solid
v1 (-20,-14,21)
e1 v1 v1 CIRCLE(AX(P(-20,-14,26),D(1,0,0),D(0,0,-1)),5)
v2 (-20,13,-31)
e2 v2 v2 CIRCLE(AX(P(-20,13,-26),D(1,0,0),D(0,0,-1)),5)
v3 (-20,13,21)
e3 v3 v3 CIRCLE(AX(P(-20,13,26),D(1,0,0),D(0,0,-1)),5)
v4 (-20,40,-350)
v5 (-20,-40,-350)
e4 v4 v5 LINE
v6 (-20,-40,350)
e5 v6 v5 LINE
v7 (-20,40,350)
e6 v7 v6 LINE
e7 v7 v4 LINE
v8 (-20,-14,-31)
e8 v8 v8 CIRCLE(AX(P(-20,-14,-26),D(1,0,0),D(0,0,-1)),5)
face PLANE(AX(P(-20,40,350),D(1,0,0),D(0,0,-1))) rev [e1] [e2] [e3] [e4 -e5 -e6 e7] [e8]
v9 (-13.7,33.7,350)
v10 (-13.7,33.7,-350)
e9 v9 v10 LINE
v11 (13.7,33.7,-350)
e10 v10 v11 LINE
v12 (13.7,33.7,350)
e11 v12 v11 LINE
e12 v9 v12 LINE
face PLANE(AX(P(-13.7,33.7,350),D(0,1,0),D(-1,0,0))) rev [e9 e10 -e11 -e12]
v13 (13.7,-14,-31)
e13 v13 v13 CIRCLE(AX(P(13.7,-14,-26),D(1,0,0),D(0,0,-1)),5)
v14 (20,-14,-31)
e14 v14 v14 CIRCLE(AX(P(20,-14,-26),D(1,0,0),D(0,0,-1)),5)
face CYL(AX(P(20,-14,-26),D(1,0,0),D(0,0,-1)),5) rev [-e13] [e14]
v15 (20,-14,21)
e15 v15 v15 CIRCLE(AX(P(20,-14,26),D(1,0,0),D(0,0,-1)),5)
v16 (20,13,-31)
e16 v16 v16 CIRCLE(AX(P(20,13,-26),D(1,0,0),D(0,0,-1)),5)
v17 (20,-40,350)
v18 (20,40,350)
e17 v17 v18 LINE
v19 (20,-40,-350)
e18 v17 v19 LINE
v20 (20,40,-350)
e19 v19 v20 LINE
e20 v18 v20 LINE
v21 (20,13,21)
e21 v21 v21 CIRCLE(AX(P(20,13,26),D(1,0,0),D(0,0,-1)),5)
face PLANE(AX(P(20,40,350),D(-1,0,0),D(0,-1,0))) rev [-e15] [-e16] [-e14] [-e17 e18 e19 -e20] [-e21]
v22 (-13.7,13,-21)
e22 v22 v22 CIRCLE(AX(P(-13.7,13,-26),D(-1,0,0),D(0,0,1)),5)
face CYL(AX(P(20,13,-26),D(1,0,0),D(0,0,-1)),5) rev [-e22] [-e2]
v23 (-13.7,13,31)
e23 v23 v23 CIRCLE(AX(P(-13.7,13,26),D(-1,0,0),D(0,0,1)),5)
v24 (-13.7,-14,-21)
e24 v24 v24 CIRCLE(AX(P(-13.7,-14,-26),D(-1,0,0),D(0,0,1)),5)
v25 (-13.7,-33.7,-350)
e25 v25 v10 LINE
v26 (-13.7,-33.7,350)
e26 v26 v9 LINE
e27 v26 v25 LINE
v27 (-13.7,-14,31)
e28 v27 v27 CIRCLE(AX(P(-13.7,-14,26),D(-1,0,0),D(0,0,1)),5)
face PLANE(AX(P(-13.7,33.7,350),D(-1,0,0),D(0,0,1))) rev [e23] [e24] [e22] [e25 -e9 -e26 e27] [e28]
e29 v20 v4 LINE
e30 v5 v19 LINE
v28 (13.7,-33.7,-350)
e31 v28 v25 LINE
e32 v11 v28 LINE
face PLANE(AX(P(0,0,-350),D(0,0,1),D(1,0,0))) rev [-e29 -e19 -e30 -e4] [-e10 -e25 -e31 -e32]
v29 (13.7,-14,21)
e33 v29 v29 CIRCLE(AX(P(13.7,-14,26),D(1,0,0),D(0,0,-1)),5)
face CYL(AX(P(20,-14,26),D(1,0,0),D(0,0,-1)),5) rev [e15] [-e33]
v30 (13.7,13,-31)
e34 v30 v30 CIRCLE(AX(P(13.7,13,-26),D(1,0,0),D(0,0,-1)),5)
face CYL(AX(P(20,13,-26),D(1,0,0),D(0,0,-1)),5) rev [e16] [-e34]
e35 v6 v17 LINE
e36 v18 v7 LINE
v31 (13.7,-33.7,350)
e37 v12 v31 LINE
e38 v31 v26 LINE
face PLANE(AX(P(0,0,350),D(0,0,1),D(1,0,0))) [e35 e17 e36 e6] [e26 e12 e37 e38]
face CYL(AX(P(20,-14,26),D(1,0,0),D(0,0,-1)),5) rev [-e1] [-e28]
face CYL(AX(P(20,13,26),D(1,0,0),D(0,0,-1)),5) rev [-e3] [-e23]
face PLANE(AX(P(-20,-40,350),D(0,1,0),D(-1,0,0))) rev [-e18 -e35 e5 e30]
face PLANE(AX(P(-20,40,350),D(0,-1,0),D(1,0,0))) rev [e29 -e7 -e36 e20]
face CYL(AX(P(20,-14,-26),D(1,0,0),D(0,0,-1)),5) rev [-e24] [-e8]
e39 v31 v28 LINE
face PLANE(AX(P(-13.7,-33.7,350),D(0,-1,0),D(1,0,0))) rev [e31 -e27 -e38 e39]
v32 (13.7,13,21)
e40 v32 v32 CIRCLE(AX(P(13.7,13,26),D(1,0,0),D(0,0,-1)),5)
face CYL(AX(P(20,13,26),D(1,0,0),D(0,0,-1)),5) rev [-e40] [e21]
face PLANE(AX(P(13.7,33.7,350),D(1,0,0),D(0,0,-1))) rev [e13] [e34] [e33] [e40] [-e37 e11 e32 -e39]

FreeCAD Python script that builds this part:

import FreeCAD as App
import Part
import Sketcher


def add_polygon(sketch, points):
    """Adds a closed chain of lines whose ends are joined by coincident constraints."""
    first, n = sketch.GeometryCount, len(points)
    for a, b in zip(points, points[1:] + points[:1]):
        sketch.addGeometry(Part.LineSegment(App.Vector(*a, 0), App.Vector(*b, 0)), False)
    for i in range(n):
        sketch.addConstraint(Sketcher.Constraint("Coincident", first + i, 2, first + (i + 1) % n, 1))

doc = App.newDocument("Part")
body = doc.addObject("PartDesign::Body", "Body")

# Sketch on XY plane
sketch1 = body.newObject("Sketcher::SketchObject", "Sketch")
sketch1.AttachmentSupport = (doc.getObject("XY_Plane"), [""])
sketch1.MapMode = "FlatFace"
add_polygon(sketch1, [(-20, 40), (-20, -40), (20, -40), (20, 40)])  # lines 0-3
add_polygon(sketch1, [(14, -34), (-14, -34), (-14, 34), (14, 34)])  # lines 4-7
sketch1.addConstraint([
    Sketcher.Constraint("Vertical", 0),
    Sketcher.Constraint("Horizontal", 1),
    Sketcher.Constraint("Vertical", 2),
    Sketcher.Constraint("Horizontal", 3),
    Sketcher.Constraint("Horizontal", 4),
    Sketcher.Constraint("Vertical", 5),
    Sketcher.Constraint("Horizontal", 6),
    Sketcher.Constraint("Vertical", 7),
    Sketcher.Constraint("Symmetric", 0, 2, 2, 2, -1, 1),
    Sketcher.Constraint("Symmetric", 4, 2, 6, 2, -1, 1),
    Sketcher.Constraint("DistanceX", 1, 1, 1, 2, 40.0),
    Sketcher.Constraint("DistanceY", 0, 2, 0, 1, 80.0),
    Sketcher.Constraint("DistanceX", 4, 2, 4, 1, 27.4),
    Sketcher.Constraint("DistanceY", 5, 1, 5, 2, 67.4),
])

# Sketch on XZ plane
sketch2 = body.newObject("Sketcher::SketchObject", "Sketch001")
sketch2.AttachmentSupport = (doc.getObject("XZ_Plane"), [""])
sketch2.MapMode = "FlatFace"
sketch2.addGeometry(Part.BSplineCurve([App.Vector(0, -350, 0), App.Vector(0, 350, 0)], [2, 2], [0, 1], False, 1, [1, 1], False), False)
sketch2.addConstraint(Sketcher.Constraint("Block", 0))
doc.recompute()

additivepipe = body.newObject("PartDesign::AdditivePipe", "AdditivePipe")
additivepipe.Profile = sketch1
additivepipe.Spine = (sketch2, ["Edge1"])

# Sketch on YZ plane
sketch3 = body.newObject("Sketcher::SketchObject", "Sketch002")
sketch3.AttachmentSupport = (doc.getObject("YZ_Plane"), [""])
sketch3.MapMode = "FlatFace"
sketch3.AttachmentOffset = App.Placement(App.Vector(0, 0, 20), App.Rotation())
sketch3.addGeometry([
    Part.Circle(App.Vector(13, -26, 0), App.Vector(0, 0, 1), 5),
    Part.Circle(App.Vector(-14, -26, 0), App.Vector(0, 0, 1), 5),
], False)
sketch3.addConstraint([
    Sketcher.Constraint("Equal", 0, 1),
    Sketcher.Constraint("Horizontal", 0, 3, 1, 3),
    Sketcher.Constraint("Diameter", 0, 10.0),
    Sketcher.Constraint("DistanceX", -1, 1, 0, 3, 13.0),
    Sketcher.Constraint("DistanceY", 0, 3, -1, 1, 26.0),
    Sketcher.Constraint("DistanceX", 1, 3, -1, 1, 14.0),
])
doc.recompute()
hole = body.newObject("PartDesign::Hole", "Hole")
hole.Profile = sketch3
hole.ThreadType = "None"
hole.Diameter = 10
hole.DepthType = "ThroughAll"
doc.recompute()

mirrored = body.newObject("PartDesign::Mirrored", "Mirrored")
mirrored.Originals = [hole]
mirrored.MirrorPlane = (doc.getObject("XY_Plane"), [""])
body.Tip = mirrored

doc.recompute()
